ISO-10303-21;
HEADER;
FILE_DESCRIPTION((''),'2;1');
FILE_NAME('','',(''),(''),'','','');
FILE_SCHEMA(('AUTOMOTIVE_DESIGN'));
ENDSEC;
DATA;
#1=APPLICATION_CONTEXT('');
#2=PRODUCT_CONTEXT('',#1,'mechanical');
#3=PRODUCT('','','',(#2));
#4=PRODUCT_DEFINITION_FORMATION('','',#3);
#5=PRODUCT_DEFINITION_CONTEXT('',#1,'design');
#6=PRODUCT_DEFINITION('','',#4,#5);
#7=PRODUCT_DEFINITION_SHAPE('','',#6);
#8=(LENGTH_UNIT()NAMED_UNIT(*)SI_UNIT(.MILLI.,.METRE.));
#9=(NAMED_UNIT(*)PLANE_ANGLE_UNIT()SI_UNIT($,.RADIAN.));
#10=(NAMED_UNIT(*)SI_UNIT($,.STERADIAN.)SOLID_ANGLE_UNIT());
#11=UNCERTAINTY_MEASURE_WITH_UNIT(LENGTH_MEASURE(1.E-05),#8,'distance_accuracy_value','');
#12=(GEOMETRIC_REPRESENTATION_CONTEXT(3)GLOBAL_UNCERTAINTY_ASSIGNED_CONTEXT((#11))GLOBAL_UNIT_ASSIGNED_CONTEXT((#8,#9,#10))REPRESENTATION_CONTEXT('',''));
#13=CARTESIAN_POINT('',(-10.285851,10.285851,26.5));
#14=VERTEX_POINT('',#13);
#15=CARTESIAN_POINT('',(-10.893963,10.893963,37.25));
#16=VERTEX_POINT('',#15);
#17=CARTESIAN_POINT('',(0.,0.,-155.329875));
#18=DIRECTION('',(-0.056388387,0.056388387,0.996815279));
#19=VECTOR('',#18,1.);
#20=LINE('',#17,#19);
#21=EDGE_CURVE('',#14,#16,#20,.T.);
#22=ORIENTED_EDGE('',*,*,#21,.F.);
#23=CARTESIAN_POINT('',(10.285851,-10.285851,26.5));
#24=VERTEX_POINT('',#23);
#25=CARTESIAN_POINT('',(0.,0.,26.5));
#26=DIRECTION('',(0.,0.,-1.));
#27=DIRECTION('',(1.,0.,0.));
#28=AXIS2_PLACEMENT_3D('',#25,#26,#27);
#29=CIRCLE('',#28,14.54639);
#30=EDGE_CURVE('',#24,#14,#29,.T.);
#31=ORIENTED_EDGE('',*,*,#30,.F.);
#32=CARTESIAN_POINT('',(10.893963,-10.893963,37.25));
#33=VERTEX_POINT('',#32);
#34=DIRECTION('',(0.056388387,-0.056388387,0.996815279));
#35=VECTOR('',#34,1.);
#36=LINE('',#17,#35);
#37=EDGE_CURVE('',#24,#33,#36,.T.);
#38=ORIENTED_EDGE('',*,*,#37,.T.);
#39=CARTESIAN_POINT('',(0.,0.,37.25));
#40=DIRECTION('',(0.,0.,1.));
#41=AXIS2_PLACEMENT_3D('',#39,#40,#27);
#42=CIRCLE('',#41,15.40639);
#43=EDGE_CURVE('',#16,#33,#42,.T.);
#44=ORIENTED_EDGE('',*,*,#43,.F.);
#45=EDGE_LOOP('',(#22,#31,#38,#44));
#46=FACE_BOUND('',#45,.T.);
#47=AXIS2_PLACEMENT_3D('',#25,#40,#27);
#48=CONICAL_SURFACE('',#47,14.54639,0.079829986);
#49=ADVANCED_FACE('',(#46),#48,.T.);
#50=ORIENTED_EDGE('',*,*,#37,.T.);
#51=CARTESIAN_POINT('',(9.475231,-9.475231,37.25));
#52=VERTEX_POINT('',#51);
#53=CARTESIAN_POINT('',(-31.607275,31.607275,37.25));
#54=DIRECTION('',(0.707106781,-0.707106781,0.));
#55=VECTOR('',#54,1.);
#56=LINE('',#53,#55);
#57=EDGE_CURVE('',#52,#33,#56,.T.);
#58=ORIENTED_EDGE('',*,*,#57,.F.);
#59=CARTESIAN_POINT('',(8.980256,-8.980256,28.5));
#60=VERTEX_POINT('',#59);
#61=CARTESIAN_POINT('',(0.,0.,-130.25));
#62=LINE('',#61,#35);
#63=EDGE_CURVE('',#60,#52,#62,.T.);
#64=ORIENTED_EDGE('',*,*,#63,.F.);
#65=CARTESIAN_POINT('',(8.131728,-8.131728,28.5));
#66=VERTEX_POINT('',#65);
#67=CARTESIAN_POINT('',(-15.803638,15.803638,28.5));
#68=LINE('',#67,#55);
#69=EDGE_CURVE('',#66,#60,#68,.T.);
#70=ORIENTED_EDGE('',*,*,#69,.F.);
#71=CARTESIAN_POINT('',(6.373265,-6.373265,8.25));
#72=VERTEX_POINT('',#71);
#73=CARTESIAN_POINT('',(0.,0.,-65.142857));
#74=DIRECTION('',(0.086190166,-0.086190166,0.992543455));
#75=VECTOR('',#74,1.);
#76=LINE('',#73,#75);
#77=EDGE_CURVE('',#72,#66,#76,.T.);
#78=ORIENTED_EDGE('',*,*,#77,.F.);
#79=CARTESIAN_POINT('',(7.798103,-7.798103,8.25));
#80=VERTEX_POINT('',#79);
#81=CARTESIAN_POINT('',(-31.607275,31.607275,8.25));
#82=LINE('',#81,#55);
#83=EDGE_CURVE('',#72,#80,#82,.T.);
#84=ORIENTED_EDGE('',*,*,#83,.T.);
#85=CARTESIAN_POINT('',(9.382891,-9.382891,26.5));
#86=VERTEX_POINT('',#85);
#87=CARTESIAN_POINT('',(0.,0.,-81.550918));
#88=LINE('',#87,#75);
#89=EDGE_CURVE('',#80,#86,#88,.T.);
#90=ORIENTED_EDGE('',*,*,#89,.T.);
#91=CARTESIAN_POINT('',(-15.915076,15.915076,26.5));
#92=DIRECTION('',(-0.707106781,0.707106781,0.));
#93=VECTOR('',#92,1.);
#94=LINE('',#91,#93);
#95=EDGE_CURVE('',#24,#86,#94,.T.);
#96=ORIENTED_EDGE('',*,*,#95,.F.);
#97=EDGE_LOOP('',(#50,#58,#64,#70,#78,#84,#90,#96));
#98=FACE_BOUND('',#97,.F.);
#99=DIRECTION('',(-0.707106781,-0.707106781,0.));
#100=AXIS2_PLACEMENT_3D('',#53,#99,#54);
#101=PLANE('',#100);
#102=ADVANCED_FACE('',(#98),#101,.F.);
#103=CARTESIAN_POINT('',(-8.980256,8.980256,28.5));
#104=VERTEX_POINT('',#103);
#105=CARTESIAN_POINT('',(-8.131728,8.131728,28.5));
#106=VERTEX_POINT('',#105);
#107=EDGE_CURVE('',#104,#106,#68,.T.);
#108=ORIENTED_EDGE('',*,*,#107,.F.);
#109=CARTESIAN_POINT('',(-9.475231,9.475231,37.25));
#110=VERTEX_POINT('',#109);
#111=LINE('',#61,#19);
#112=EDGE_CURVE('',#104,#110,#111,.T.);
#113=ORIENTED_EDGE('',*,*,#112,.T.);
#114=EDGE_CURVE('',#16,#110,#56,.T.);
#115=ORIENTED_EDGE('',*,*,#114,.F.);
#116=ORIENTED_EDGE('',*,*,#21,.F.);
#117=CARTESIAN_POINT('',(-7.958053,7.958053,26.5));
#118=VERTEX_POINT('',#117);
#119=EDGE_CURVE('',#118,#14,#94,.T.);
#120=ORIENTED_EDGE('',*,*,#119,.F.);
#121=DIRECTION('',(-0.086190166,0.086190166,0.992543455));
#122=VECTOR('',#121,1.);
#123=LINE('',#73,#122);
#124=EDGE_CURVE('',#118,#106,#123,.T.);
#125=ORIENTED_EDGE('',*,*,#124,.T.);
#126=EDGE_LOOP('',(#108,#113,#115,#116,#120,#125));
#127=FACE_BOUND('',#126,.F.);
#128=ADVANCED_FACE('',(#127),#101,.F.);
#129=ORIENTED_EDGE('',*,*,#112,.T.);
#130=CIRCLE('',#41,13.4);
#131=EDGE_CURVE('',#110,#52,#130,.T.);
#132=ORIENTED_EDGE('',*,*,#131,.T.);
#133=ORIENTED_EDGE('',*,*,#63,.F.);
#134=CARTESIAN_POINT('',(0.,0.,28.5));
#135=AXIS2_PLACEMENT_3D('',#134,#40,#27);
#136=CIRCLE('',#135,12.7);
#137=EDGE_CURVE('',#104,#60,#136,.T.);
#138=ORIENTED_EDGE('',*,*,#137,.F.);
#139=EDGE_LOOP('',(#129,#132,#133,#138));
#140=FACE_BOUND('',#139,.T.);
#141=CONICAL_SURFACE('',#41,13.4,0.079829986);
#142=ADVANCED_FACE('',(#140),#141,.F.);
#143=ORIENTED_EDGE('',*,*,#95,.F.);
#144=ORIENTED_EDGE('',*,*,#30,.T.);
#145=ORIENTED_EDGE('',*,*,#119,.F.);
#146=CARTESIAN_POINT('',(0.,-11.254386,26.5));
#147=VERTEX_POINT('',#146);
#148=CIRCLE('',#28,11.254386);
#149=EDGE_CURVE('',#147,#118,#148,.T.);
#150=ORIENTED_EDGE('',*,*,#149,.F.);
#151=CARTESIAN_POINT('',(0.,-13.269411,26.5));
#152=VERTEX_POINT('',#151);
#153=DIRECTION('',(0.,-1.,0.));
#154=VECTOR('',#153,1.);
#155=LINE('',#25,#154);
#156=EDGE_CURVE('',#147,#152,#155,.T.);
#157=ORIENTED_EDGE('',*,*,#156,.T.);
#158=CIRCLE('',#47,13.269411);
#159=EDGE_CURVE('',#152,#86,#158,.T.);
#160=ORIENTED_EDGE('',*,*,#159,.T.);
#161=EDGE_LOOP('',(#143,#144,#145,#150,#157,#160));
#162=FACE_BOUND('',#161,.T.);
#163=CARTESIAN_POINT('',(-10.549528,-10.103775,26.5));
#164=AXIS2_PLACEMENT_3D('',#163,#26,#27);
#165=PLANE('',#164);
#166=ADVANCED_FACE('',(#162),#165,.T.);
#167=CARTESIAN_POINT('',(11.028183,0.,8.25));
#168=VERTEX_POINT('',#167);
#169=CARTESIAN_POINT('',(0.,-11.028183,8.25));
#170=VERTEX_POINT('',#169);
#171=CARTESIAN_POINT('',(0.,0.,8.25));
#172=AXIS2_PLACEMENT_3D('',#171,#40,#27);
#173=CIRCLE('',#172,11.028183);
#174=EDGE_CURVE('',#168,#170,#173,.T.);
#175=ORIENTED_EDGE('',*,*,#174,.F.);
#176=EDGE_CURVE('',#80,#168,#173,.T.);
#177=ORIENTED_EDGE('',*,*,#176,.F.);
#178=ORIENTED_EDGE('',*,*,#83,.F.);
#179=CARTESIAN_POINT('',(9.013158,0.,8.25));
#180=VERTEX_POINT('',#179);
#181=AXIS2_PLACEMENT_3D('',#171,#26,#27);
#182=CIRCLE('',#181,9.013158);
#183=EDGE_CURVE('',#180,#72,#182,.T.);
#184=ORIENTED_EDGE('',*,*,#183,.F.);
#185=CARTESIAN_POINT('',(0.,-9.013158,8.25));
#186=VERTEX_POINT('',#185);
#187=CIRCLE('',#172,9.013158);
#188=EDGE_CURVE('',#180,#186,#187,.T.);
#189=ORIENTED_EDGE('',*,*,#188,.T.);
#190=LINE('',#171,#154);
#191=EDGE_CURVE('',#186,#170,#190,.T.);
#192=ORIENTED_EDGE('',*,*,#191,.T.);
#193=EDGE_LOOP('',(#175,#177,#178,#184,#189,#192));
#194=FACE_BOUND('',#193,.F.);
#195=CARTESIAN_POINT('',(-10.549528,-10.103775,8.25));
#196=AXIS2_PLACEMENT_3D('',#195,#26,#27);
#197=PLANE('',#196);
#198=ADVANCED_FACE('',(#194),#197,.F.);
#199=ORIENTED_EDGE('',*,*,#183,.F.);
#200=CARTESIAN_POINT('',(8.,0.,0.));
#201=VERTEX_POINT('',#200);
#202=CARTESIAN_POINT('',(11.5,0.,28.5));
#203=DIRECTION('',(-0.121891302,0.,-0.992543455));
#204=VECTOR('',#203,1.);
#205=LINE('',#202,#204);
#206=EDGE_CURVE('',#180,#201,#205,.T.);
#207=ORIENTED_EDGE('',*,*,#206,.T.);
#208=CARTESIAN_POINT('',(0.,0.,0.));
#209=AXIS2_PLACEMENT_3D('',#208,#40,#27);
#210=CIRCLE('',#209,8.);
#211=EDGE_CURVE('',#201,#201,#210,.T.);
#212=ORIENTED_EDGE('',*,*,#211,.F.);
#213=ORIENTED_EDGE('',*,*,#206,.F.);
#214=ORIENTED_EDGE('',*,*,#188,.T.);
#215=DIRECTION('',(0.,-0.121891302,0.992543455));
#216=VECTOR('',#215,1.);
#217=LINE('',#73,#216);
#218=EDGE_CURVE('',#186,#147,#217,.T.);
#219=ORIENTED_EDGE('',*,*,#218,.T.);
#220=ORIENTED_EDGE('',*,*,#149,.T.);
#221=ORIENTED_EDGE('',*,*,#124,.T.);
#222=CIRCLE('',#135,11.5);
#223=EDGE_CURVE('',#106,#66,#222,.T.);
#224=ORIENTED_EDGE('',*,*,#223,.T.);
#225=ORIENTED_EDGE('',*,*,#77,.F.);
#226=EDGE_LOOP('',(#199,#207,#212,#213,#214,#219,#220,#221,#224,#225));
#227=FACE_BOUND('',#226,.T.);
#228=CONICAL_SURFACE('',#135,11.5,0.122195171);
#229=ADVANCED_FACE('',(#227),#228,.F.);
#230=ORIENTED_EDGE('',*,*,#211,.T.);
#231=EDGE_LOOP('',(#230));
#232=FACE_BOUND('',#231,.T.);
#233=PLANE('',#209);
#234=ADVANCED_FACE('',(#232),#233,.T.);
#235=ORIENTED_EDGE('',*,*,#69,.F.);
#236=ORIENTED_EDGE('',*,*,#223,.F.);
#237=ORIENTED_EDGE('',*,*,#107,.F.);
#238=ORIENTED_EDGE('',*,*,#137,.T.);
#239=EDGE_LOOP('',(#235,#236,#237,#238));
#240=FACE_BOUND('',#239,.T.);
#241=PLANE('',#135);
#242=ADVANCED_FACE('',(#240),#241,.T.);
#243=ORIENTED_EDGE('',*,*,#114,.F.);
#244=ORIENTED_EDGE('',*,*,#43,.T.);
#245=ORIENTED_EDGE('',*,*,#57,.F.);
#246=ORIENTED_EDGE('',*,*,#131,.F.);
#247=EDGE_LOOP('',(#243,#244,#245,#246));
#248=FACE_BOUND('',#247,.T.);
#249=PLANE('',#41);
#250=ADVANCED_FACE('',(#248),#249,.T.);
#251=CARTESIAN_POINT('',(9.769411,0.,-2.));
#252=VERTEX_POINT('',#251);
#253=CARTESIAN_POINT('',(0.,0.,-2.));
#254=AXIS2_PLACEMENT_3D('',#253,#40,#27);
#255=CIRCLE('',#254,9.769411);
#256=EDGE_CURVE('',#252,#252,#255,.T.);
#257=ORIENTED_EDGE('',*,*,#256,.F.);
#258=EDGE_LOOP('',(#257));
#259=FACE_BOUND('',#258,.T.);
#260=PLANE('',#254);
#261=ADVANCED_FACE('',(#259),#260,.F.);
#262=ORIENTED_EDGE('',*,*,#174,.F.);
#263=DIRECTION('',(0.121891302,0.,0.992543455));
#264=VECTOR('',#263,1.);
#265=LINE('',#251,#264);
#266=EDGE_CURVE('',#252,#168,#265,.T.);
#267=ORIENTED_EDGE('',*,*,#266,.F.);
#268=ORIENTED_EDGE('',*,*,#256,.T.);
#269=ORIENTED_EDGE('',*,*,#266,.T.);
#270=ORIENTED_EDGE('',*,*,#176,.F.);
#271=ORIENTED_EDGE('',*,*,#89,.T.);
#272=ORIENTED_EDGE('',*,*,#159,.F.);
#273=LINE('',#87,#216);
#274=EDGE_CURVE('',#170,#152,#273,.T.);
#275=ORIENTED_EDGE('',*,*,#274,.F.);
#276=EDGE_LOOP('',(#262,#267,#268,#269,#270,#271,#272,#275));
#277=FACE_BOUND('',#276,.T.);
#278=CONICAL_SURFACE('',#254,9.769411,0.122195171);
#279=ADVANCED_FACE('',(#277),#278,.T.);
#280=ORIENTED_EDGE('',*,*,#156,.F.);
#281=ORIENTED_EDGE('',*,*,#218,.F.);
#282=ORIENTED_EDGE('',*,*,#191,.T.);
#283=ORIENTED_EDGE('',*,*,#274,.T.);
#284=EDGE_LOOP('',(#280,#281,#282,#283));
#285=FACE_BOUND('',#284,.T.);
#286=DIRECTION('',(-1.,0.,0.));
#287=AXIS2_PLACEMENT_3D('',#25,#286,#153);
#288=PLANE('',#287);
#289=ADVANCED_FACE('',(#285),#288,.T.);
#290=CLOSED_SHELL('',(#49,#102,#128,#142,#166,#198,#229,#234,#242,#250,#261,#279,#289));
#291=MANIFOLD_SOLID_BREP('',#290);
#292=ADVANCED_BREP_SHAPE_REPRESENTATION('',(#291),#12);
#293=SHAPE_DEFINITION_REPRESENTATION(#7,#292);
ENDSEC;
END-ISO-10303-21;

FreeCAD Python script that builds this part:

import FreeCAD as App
import Part
import Sketcher
from FreeCAD import Vector

doc = App.newDocument("Part")
body = doc.addObject("PartDesign::Body", "Body")

# Sketch on XZ plane
sketch1 = doc.addObject("Sketcher::SketchObject", "Sketch")
body.addObject(sketch1)
sketch1.AttachmentSupport = (doc.XZ_Plane, [""])
sketch1.MapMode = "FlatFace"
sketch1.addGeometry([
    Part.LineSegment(Vector(8, 0, 0), Vector(0, 0, 0)),  # 0
    Part.LineSegment(Vector(0, 0, 0), Vector(0, -2, 0)),  # 1
    Part.LineSegment(Vector(0, -2, 0), Vector(9.769411, -2, 0)),  # 2
    Part.LineSegment(Vector(9.769411, -2, 0), Vector(13.269411, 26.5, 0)),  # 3
    Part.LineSegment(Vector(13.269411, 26.5, 0), Vector(14.54639, 26.5, 0)),  # 4
    Part.LineSegment(Vector(14.54639, 26.5, 0), Vector(15.40639, 37.25, 0)),  # 5
    Part.LineSegment(Vector(15.40639, 37.25, 0), Vector(13.4, 37.25, 0)),  # 6
    Part.LineSegment(Vector(13.4, 37.25, 0), Vector(12.7, 28.5, 0)),  # 7
    Part.LineSegment(Vector(12.7, 28.5, 0), Vector(11.5, 28.5, 0)),  # 8
    Part.LineSegment(Vector(11.5, 28.5, 0), Vector(8, 0, 0)),  # 9
], False)
sketch1.addConstraint([
    Sketcher.Constraint("Coincident", 0, 2, 1, 1),
    Sketcher.Constraint("Coincident", 1, 2, 2, 1),
    Sketcher.Constraint("Coincident", 2, 2, 3, 1),
    Sketcher.Constraint("Coincident", 3, 2, 4, 1),
    Sketcher.Constraint("Coincident", 4, 2, 5, 1),
    Sketcher.Constraint("Coincident", 5, 2, 6, 1),
    Sketcher.Constraint("Coincident", 6, 2, 7, 1),
    Sketcher.Constraint("Coincident", 7, 2, 8, 1),
    Sketcher.Constraint("Coincident", 8, 2, 9, 1),
    Sketcher.Constraint("Coincident", 9, 2, 0, 1),
    Sketcher.Constraint("Horizontal", 0),
    Sketcher.Constraint("Vertical", 1),
    Sketcher.Constraint("Horizontal", 2),
    Sketcher.Constraint("Horizontal", 4),
    Sketcher.Constraint("Horizontal", 6),
    Sketcher.Constraint("Horizontal", 8),
    Sketcher.Constraint("Coincident", 0, 2, -1, 1),
    Sketcher.Constraint("Parallel", 5, 7),
    Sketcher.Constraint("Parallel", 3, 9),
    Sketcher.Constraint("Equal", 3, 9),
    Sketcher.Constraint("DistanceX", 0, 2, 0, 1, 8.0),
    Sketcher.Constraint("DistanceY", 1, 2, 1, 1, 2.0),
    Sketcher.Constraint("DistanceX", 8, 2, 8, 1, 1.2),
    Sketcher.Constraint("DistanceY", -1, 1, 3, 2, 26.5),
    Sketcher.Constraint("DistanceX", -1, 1, 6, 2, 13.4),
    Sketcher.Constraint("DistanceX", -1, 1, 7, 2, 12.7),
    Sketcher.Constraint("DistanceY", -1, 1, 5, 2, 37.25),
    Sketcher.Constraint("DistanceX", 2, 1, 2, 2, 9.769411),
    Sketcher.Constraint("DistanceX", 4, 1, 4, 2, 1.276979),
])
revolution = doc.addObject("PartDesign::Revolution", "Revolution")
body.addObject(revolution)
revolution.Profile = sketch1
revolution.ReferenceAxis = (sketch1, ["V_Axis"])
revolution.Angle = 360

# Sketch on XY plane
sketch2 = doc.addObject("Sketcher::SketchObject", "Sketch001")
body.addObject(sketch2)
sketch2.AttachmentSupport = (doc.XY_Plane, [""])
sketch2.MapMode = "FlatFace"
sketch2.AttachmentOffset = App.Placement(Vector(0, 0, 26.5), App.Rotation())
sketch2.addGeometry([
    Part.LineSegment(Vector(-21.099057, 0, 0), Vector(-20.108491, 0, 0)),  # 0
    Part.LineSegment(Vector(-20.108491, 0, 0), Vector(-20.108491, 19.117925, 0)),  # 1
    Part.LineSegment(Vector(-20.108491, 19.117925, 0), Vector(20.306604, 19.117925, 0)),  # 2
    Part.LineSegment(Vector(20.306604, 19.117925, 0), Vector(20.306604, 0, 0)),  # 3
    Part.LineSegment(Vector(20.306604, 0, 0), Vector(0, 0, 0)),  # 4
    Part.LineSegment(Vector(0, 0, 0), Vector(0, -20.207549, 0)),  # 5
    Part.LineSegment(Vector(0, -20.207549, 0), Vector(-21.099057, -20.207549, 0)),  # 6
    Part.LineSegment(Vector(-21.099057, -20.207549, 0), Vector(-21.099057, 0, 0)),  # 7
], False)
sketch2.addConstraint([
    Sketcher.Constraint("Coincident", 0, 2, 1, 1),
    Sketcher.Constraint("Coincident", 1, 2, 2, 1),
    Sketcher.Constraint("Coincident", 2, 2, 3, 1),
    Sketcher.Constraint("Coincident", 3, 2, 4, 1),
    Sketcher.Constraint("Coincident", 4, 2, 5, 1),
    Sketcher.Constraint("Coincident", 5, 2, 6, 1),
    Sketcher.Constraint("Coincident", 6, 2, 7, 1),
    Sketcher.Constraint("Coincident", 7, 2, 0, 1),
    Sketcher.Constraint("Horizontal", 0),
    Sketcher.Constraint("Vertical", 1),
    Sketcher.Constraint("Horizontal", 2),
    Sketcher.Constraint("Vertical", 3),
    Sketcher.Constraint("Horizontal", 4),
    Sketcher.Constraint("Vertical", 5),
    Sketcher.Constraint("Horizontal", 6),
    Sketcher.Constraint("Vertical", 7),
    Sketcher.Constraint("Coincident", 4, 2, -1, 1),
    Sketcher.Constraint("PointOnObject", 0, 2, -1),
    Sketcher.Constraint("DistanceY", 5, 2, 5, 1, 20.207549),
    Sketcher.Constraint("DistanceX", 0, 1, 0, 2, 0.990566),
    Sketcher.Constraint("DistanceX", 2, 1, 2, 2, 40.415095),
    Sketcher.Constraint("DistanceX", 4, 2, 4, 1, 20.306604),
    Sketcher.Constraint("DistanceY", 1, 1, 1, 2, 19.117925),
])
pocket1 = doc.addObject("PartDesign::Pocket", "Pocket")
body.addObject(pocket1)
pocket1.Profile = sketch2
pocket1.Length = 18.25

# Sketch on XY plane
sketch3 = doc.addObject("Sketcher::SketchObject", "Sketch002")
body.addObject(sketch3)
sketch3.AttachmentSupport = (doc.XY_Plane, [""])
sketch3.MapMode = "FlatFace"
sketch3.AttachmentOffset = App.Placement(Vector(0, 0, 37.25), App.Rotation())
sketch3.addGeometry([
    Part.LineSegment(Vector(25.364828, 31.607275, 0), Vector(-31.607275, 31.607275, 0)),
    Part.LineSegment(Vector(-31.607275, 31.607275, 0), Vector(25.364828, -25.364828, 0)),
    Part.LineSegment(Vector(25.364828, -25.364828, 0), Vector(25.364828, 31.607275, 0)),
], False)
sketch3.addConstraint([
    Sketcher.Constraint("Coincident", 0, 2, 1, 1),
    Sketcher.Constraint("Coincident", 1, 2, 2, 1),
    Sketcher.Constraint("Coincident", 2, 2, 0, 1),
    Sketcher.Constraint("Horizontal", 0),
    Sketcher.Constraint("Vertical", 2),
    Sketcher.Constraint("Equal", 0, 2),
    Sketcher.Constraint("Distance", 1, 80.570721),
    Sketcher.Constraint("DistanceX", 0, 2, -1, 1, 31.607275),
    Sketcher.Constraint("DistanceY", -1, 1, 0, 2, 31.607275),
])
pocket2 = doc.addObject("PartDesign::Pocket", "Pocket001")
body.addObject(pocket2)
pocket2.Profile = sketch3
pocket2.Length = 29

doc.recompute()
